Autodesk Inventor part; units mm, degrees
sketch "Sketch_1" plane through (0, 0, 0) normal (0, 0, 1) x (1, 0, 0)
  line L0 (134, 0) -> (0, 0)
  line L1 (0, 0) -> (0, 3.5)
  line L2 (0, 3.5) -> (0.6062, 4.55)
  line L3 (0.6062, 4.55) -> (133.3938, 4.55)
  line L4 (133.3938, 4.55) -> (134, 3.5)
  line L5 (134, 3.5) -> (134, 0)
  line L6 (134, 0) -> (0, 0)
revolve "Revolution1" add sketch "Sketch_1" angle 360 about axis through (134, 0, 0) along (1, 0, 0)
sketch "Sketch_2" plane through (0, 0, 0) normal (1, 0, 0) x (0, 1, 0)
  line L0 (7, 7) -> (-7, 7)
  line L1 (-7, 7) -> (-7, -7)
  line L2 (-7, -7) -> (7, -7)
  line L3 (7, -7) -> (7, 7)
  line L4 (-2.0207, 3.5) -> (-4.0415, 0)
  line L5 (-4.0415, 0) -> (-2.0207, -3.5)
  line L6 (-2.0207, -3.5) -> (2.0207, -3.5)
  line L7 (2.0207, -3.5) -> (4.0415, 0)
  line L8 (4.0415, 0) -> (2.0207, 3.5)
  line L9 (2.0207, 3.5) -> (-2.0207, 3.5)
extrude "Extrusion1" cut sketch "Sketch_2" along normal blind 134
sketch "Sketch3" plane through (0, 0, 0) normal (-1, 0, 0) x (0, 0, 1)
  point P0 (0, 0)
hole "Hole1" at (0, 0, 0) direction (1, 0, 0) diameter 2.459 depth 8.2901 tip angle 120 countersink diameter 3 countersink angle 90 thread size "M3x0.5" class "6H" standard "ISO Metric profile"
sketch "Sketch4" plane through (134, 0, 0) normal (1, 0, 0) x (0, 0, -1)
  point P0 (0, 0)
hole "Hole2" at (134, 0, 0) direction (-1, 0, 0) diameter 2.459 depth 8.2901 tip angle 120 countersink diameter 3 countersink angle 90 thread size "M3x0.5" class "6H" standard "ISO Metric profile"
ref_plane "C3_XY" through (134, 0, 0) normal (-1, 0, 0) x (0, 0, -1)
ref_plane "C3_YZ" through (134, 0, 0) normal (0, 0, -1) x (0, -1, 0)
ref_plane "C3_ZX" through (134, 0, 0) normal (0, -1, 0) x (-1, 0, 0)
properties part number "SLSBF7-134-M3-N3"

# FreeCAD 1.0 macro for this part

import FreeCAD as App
import Part
import Sketcher
from FreeCAD import Vector
Q = App.Units.Quantity

doc = App.newDocument("Part")
params = doc.addObject("Spreadsheet::Sheet", "Params")
for row, (alias, value) in enumerate([
    ("sketch1_width", "134 mm"),
    ("sketch1_height", "3.5 mm"),
    ("revolution_angle", "360 deg"),
    ("sketch2_width", "14 mm"),
    ("pocket1_length", "134 mm"),
    ("hole_diameter", "2.459 mm"),
    ("hole_depth", "8.2901 mm"),
    ("hole_csink_diameter", "3 mm"),
    ("hole2_diameter", "2.459 mm"),
    ("hole2_depth", "8.2901 mm"),
    ("hole2_csink_diameter", "3 mm"),
], start=1):
    params.set(f"A{row}", alias)
    params.set(f"B{row}", "=" + value)
    params.setAlias(f"B{row}", alias)

body = doc.addObject("PartDesign::Body", "Body")

sketch1 = doc.addObject("Sketcher::SketchObject", "Sketch")
body.addObject(sketch1)
sketch1.AttachmentSupport = (doc.XY_Plane, [""])
sketch1.MapMode = "FlatFace"
sketch1.addGeometry(Part.LineSegment(Vector(0, 0, 0), Vector(134, 0, 0)), False)
sketch1.addGeometry(Part.LineSegment(Vector(134, 0, 0), Vector(134, 3.5, 0)), False)
sketch1.addGeometry(Part.LineSegment(Vector(134, 3.5, 0), Vector(133.4, 4.5, 0)), False)
sketch1.addGeometry(Part.LineSegment(Vector(133.4, 4.5, 0), Vector(0.6, 4.5, 0)), False)
sketch1.addGeometry(Part.LineSegment(Vector(0.6, 4.5, 0), Vector(0, 3.5, 0)), False)
sketch1.addGeometry(Part.LineSegment(Vector(0, 3.5, 0), Vector(0, 0, 0)), False)
sketch1.addConstraint(Sketcher.Constraint("Coincident", 0, 2, 1, 1))
sketch1.addConstraint(Sketcher.Constraint("Coincident", 1, 2, 2, 1))
sketch1.addConstraint(Sketcher.Constraint("Coincident", 2, 2, 3, 1))
sketch1.addConstraint(Sketcher.Constraint("Coincident", 3, 2, 4, 1))
sketch1.addConstraint(Sketcher.Constraint("Coincident", 4, 2, 5, 1))
sketch1.addConstraint(Sketcher.Constraint("Coincident", 5, 2, 0, 1))
sketch1.addConstraint(Sketcher.Constraint("Horizontal", 0))
sketch1.addConstraint(Sketcher.Constraint("Vertical", 1))
sketch1.addConstraint(Sketcher.Constraint("Horizontal", 3))
sketch1.addConstraint(Sketcher.Constraint("Vertical", 5))
sketch1.addConstraint(Sketcher.Constraint("Coincident", 5, 2, -1, 1))
sketch1.addConstraint(Sketcher.Constraint("Horizontal", 1, 2, 4, 2))
sketch1.addConstraint(Sketcher.Constraint("Equal", 2, 4))
sketch1.addConstraint(Sketcher.Constraint("DistanceX", 0, 1, 0, 2, Q("134 mm")))
sketch1.addConstraint(Sketcher.Constraint("Angle", 2, Q("119.9993 deg")))
sketch1.addConstraint(Sketcher.Constraint("DistanceY", 1, 1, 1, 2, Q("3.5 mm")))
sketch1.addConstraint(Sketcher.Constraint("DistanceY", -1, 1, 2, 2, Q("4.55 mm")))
sketch1.setExpression("Constraints[13]", "Params.sketch1_width")
sketch1.setExpression("Constraints[15]", "Params.sketch1_height")
revolution = doc.addObject("PartDesign::Revolution", "Revolution")
body.addObject(revolution)
revolution.Profile = sketch1
revolution.ReferenceAxis = (sketch1, ["H_Axis"])
revolution.setExpression("Angle", "Params.revolution_angle")

sketch2 = doc.addObject("Sketcher::SketchObject", "Sketch001")
body.addObject(sketch2)
sketch2.AttachmentSupport = (doc.YZ_Plane, [""])
sketch2.MapMode = "FlatFace"
sketch2.addGeometry(Part.LineSegment(Vector(7, -7, 0), Vector(7, 7, 0)), False)
sketch2.addGeometry(Part.LineSegment(Vector(7, 7, 0), Vector(-7, 7, 0)), False)
sketch2.addGeometry(Part.LineSegment(Vector(-7, 7, 0), Vector(-7, -7, 0)), False)
sketch2.addGeometry(Part.LineSegment(Vector(-7, -7, 0), Vector(7, -7, 0)), False)
sketch2.addGeometry(Part.LineSegment(Vector(-4, 0, 0), Vector(-2, 3.5, 0)), False)
sketch2.addGeometry(Part.LineSegment(Vector(-2, 3.5, 0), Vector(2, 3.5, 0)), False)
sketch2.addGeometry(Part.LineSegment(Vector(2, 3.5, 0), Vector(4, 0, 0)), False)
sketch2.addGeometry(Part.LineSegment(Vector(4, 0, 0), Vector(2, -3.5, 0)), False)
sketch2.addGeometry(Part.LineSegment(Vector(2, -3.5, 0), Vector(-2, -3.5, 0)), False)
sketch2.addGeometry(Part.LineSegment(Vector(-2, -3.5, 0), Vector(-4, 0, 0)), False)
sketch2.addConstraint(Sketcher.Constraint("Coincident", 0, 2, 1, 1))
sketch2.addConstraint(Sketcher.Constraint("Coincident", 1, 2, 2, 1))
sketch2.addConstraint(Sketcher.Constraint("Coincident", 2, 2, 3, 1))
sketch2.addConstraint(Sketcher.Constraint("Coincident", 3, 2, 0, 1))
sketch2.addConstraint(Sketcher.Constraint("Coincident", 4, 2, 5, 1))
sketch2.addConstraint(Sketcher.Constraint("Coincident", 5, 2, 6, 1))
sketch2.addConstraint(Sketcher.Constraint("Coincident", 6, 2, 7, 1))
sketch2.addConstraint(Sketcher.Constraint("Coincident", 7, 2, 8, 1))
sketch2.addConstraint(Sketcher.Constraint("Coincident", 8, 2, 9, 1))
sketch2.addConstraint(Sketcher.Constraint("Coincident", 9, 2, 4, 1))
sketch2.addConstraint(Sketcher.Constraint("Vertical", 0))
sketch2.addConstraint(Sketcher.Constraint("Horizontal", 1))
sketch2.addConstraint(Sketcher.Constraint("Vertical", 2))
sketch2.addConstraint(Sketcher.Constraint("Horizontal", 3))
sketch2.addConstraint(Sketcher.Constraint("Horizontal", 5))
sketch2.addConstraint(Sketcher.Constraint("Horizontal", 8))
sketch2.addConstraint(Sketcher.Constraint("Symmetric", 0, 2, 2, 2, -1, 1))
sketch2.addConstraint(Sketcher.Constraint("Symmetric", 4, 2, 7, 2, -1, 1))
sketch2.addConstraint(Sketcher.Constraint("Symmetric", 6, 2, 9, 2, -1, 1))
sketch2.addConstraint(Sketcher.Constraint("PointOnObject", 6, 2, -1))
sketch2.addConstraint(Sketcher.Constraint("Parallel", 6, 9))
sketch2.addConstraint(Sketcher.Constraint("Vertical", 5, 2, 7, 2))
sketch2.addConstraint(Sketcher.Constraint("Equal", 3, 0))
sketch2.addConstraint(Sketcher.Constraint("DistanceX", 1, 2, 1, 1, Q("14 mm")))
sketch2.addConstraint(Sketcher.Constraint("Angle", 4, Q("59.999 deg")))
sketch2.addConstraint(Sketcher.Constraint("DistanceY", 7, 2, 5, 2, Q("7 mm")))
sketch2.addConstraint(Sketcher.Constraint("DistanceX", 5, 1, 5, 2, Q("4.0414 mm")))
sketch2.setExpression("Constraints[23]", "Params.sketch2_width")
pocket1 = doc.addObject("PartDesign::Pocket", "Pocket")
body.addObject(pocket1)
pocket1.Profile = sketch2
pocket1.setExpression("Length", "Params.pocket1_length")
pocket1.Reversed = True

sketch3 = doc.addObject("Sketcher::SketchObject", "Sketch002")
body.addObject(sketch3)
sketch3.AttachmentSupport = (doc.YZ_Plane, [""])
sketch3.MapMode = "FlatFace"
sketch3.addGeometry(Part.Circle(Vector(0, 0, 0), Vector(0, 0, 1), 1.2), False)
sketch3.addConstraint(Sketcher.Constraint("Coincident", 0, 3, -1, 1))
sketch3.addConstraint(Sketcher.Constraint("Diameter", 0, Q("2.459 mm")))
doc.recompute()
hole = doc.addObject("PartDesign::Hole", "Hole")
body.addObject(hole)
hole.Profile = sketch3
hole.ThreadType = "None"
hole.setExpression("Diameter", "Params.hole_diameter")
hole.DepthType = "Dimension"
hole.setExpression("Depth", "Params.hole_depth")
hole.DrillPoint = "Angled"
hole.DrillPointAngle = 120
hole.HoleCutType = "Countersink"
hole.setExpression("HoleCutDiameter", "Params.hole_csink_diameter")
hole.HoleCutCountersinkAngle = 90
hole.Reversed = True

sketch4 = doc.addObject("Sketcher::SketchObject", "Sketch003")
body.addObject(sketch4)
sketch4.AttachmentSupport = (doc.YZ_Plane, [""])
sketch4.MapMode = "FlatFace"
sketch4.AttachmentOffset = App.Placement(Vector(0, 0, 134), App.Rotation())
sketch4.addGeometry(Part.Circle(Vector(0, 0, 0), Vector(0, 0, 1), 1.2), False)
sketch4.addConstraint(Sketcher.Constraint("Coincident", 0, 3, -1, 1))
sketch4.addConstraint(Sketcher.Constraint("Diameter", 0, Q("2.459 mm")))
doc.recompute()
hole2 = doc.addObject("PartDesign::Hole", "Hole001")
body.addObject(hole2)
hole2.Profile = sketch4
hole2.ThreadType = "None"
hole2.setExpression("Diameter", "Params.hole2_diameter")
hole2.DepthType = "Dimension"
hole2.setExpression("Depth", "Params.hole2_depth")
hole2.DrillPoint = "Angled"
hole2.DrillPointAngle = 120
hole2.HoleCutType = "Countersink"
hole2.setExpression("HoleCutDiameter", "Params.hole2_csink_diameter")
hole2.HoleCutCountersinkAngle = 90

doc.recompute()
